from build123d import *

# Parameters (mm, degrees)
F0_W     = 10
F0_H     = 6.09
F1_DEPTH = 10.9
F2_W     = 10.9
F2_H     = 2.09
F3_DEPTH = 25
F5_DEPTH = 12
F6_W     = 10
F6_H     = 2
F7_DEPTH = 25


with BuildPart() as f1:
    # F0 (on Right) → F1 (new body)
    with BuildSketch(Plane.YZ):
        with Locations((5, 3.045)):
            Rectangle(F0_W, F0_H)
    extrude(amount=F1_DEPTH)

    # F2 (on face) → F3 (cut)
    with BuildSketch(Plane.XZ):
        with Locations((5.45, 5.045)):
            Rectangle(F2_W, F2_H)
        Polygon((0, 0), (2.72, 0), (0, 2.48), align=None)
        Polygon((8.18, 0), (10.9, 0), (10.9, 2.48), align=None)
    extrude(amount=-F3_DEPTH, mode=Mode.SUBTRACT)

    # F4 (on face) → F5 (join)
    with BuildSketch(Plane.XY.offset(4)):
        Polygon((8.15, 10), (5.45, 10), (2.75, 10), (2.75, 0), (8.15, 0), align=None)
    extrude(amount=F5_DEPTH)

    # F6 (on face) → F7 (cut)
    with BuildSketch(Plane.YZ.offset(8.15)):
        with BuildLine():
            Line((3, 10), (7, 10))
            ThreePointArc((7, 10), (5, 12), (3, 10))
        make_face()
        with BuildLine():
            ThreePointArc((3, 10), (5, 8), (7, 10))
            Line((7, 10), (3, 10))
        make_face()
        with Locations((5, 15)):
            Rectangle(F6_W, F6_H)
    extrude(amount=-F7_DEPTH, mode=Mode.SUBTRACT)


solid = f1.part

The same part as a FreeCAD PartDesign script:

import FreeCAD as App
import Part
import Sketcher

V = App.Vector

doc = App.newDocument("Part")
body = doc.addObject("PartDesign::Body", "Body")

# Sketch on YZ plane
sketch1 = body.newObject("Sketcher::SketchObject", "Sketch")
sketch1.AttachmentSupport = (doc.getObject("YZ_Plane"), [""])
sketch1.MapMode = "FlatFace"
sketch1.addGeometry([
    Part.LineSegment(V(0, 6, 0), V(0, 0, 0)),
    Part.LineSegment(V(0, 0, 0), V(10, 0, 0)),
    Part.LineSegment(V(10, 0, 0), V(10, 6, 0)),
    Part.LineSegment(V(10, 6, 0), V(0, 6, 0)),
], False)
sketch1.addConstraint([
    Sketcher.Constraint("Coincident", 0, 2, 1, 1),
    Sketcher.Constraint("Coincident", 1, 2, 2, 1),
    Sketcher.Constraint("Coincident", 2, 2, 3, 1),
    Sketcher.Constraint("Coincident", 3, 2, 0, 1),
    Sketcher.Constraint("Vertical", 0),
    Sketcher.Constraint("Horizontal", 1),
    Sketcher.Constraint("Vertical", 2),
    Sketcher.Constraint("Horizontal", 3),
    Sketcher.Constraint("Coincident", 0, 2, -1, 1),
    Sketcher.Constraint("DistanceX", 1, 1, 1, 2, 10.0),
    Sketcher.Constraint("DistanceY", 0, 2, 0, 1, 6.09),
])
pad1 = body.newObject("PartDesign::Pad", "Pad")
pad1.Profile = sketch1
pad1.Length = 10.9

# Sketch on XZ plane
sketch2 = body.newObject("Sketcher::SketchObject", "Sketch001")
sketch2.AttachmentSupport = (doc.getObject("XZ_Plane"), [""])
sketch2.MapMode = "FlatFace"
sketch2.addGeometry([
    Part.LineSegment(V(0, 6.1, 0), V(0, 4, 0)),  # 0
    Part.LineSegment(V(0, 4, 0), V(10.9, 4, 0)),  # 1
    Part.LineSegment(V(10.9, 4, 0), V(10.9, 6.1, 0)),  # 2
    Part.LineSegment(V(10.9, 6.1, 0), V(0, 6.1, 0)),  # 3
    Part.LineSegment(V(0, 0, 0), V(2.7, 0, 0)),  # 4
    Part.LineSegment(V(2.7, 0, 0), V(0, 2.5, 0)),  # 5
    Part.LineSegment(V(0, 2.5, 0), V(0, 0, 0)),  # 6
    Part.LineSegment(V(8.2, 0, 0), V(10.9, 0, 0)),  # 7
    Part.LineSegment(V(10.9, 0, 0), V(10.9, 2.5, 0)),  # 8
    Part.LineSegment(V(10.9, 2.5, 0), V(8.2, 0, 0)),  # 9
], False)
sketch2.addConstraint([
    Sketcher.Constraint("Coincident", 0, 2, 1, 1),
    Sketcher.Constraint("Coincident", 1, 2, 2, 1),
    Sketcher.Constraint("Coincident", 2, 2, 3, 1),
    Sketcher.Constraint("Coincident", 3, 2, 0, 1),
    Sketcher.Constraint("Coincident", 4, 2, 5, 1),
    Sketcher.Constraint("Coincident", 5, 2, 6, 1),
    Sketcher.Constraint("Coincident", 6, 2, 4, 1),
    Sketcher.Constraint("Coincident", 7, 2, 8, 1),
    Sketcher.Constraint("Coincident", 8, 2, 9, 1),
    Sketcher.Constraint("Coincident", 9, 2, 7, 1),
    Sketcher.Constraint("Vertical", 0),
    Sketcher.Constraint("Horizontal", 1),
    Sketcher.Constraint("Vertical", 2),
    Sketcher.Constraint("Horizontal", 3),
    Sketcher.Constraint("Horizontal", 4),
    Sketcher.Constraint("Vertical", 6),
    Sketcher.Constraint("Horizontal", 7),
    Sketcher.Constraint("Vertical", 8),
    Sketcher.Constraint("Coincident", 6, 2, -1, 1),
    Sketcher.Constraint("PointOnObject", 0, 2, -2),
    Sketcher.Constraint("PointOnObject", 7, 2, -1),
    Sketcher.Constraint("Horizontal", 5, 2, 8, 2),
    Sketcher.Constraint("Vertical", 2, 2, 7, 2),
    Sketcher.Constraint("Equal", 4, 7),
    Sketcher.Constraint("DistanceX", 1, 1, 1, 2, 10.9),
    Sketcher.Constraint("DistanceY", -1, 1, 0, 2, 4.0),
    Sketcher.Constraint("DistanceX", 4, 1, 4, 2, 2.72),
    Sketcher.Constraint("DistanceY", 0, 2, 0, 1, 2.09),
    Sketcher.Constraint("DistanceY", 6, 2, 6, 1, 2.48),
])
pocket1 = body.newObject("PartDesign::Pocket", "Pocket")
pocket1.Profile = sketch2
pocket1.Length = 25

# Sketch on XY plane
sketch3 = body.newObject("Sketcher::SketchObject", "Sketch002")
sketch3.AttachmentSupport = (doc.getObject("XY_Plane"), [""])
sketch3.MapMode = "FlatFace"
sketch3.AttachmentOffset = App.Placement(V(0, 0, 4), App.Rotation())
sketch3.addGeometry([
    Part.LineSegment(V(8, 10, 0), V(3, 10, 0)),
    Part.LineSegment(V(3, 10, 0), V(3, 0, 0)),
    Part.LineSegment(V(3, 0, 0), V(8, 0, 0)),
    Part.LineSegment(V(8, 0, 0), V(8, 10, 0)),
], False)
sketch3.addConstraint([
    Sketcher.Constraint("Coincident", 0, 2, 1, 1),
    Sketcher.Constraint("Coincident", 1, 2, 2, 1),
    Sketcher.Constraint("Coincident", 2, 2, 3, 1),
    Sketcher.Constraint("Coincident", 3, 2, 0, 1),
    Sketcher.Constraint("Horizontal", 0),
    Sketcher.Constraint("Vertical", 1),
    Sketcher.Constraint("Horizontal", 2),
    Sketcher.Constraint("Vertical", 3),
    Sketcher.Constraint("PointOnObject", 1, 2, -1),
    Sketcher.Constraint("DistanceY", 1, 2, 1, 1, 10.0),
    Sketcher.Constraint("DistanceX", 0, 2, 0, 1, 5.4),
    Sketcher.Constraint("DistanceX", -1, 1, 0, 2, 2.75),
])
pad2 = body.newObject("PartDesign::Pad", "Pad001")
pad2.Profile = sketch3
pad2.Length = 12

# Sketch on YZ plane
sketch4 = body.newObject("Sketcher::SketchObject", "Sketch003")
sketch4.AttachmentSupport = (doc.getObject("YZ_Plane"), [""])
sketch4.MapMode = "FlatFace"
sketch4.AttachmentOffset = App.Placement(V(0, 0, 8.15), App.Rotation())
sketch4.addGeometry([
    Part.Circle(V(5, 10, 0), V(0, 0, 1), 2),  # 0
    Part.LineSegment(V(0, 16, 0), V(0, 14, 0)),  # 1
    Part.LineSegment(V(0, 14, 0), V(10, 14, 0)),  # 2
    Part.LineSegment(V(10, 14, 0), V(10, 16, 0)),  # 3
    Part.LineSegment(V(10, 16, 0), V(0, 16, 0)),  # 4
], False)
sketch4.addConstraint([
    Sketcher.Constraint("Coincident", 1, 2, 2, 1),
    Sketcher.Constraint("Coincident", 2, 2, 3, 1),
    Sketcher.Constraint("Coincident", 3, 2, 4, 1),
    Sketcher.Constraint("Coincident", 4, 2, 1, 1),
    Sketcher.Constraint("Vertical", 1),
    Sketcher.Constraint("Horizontal", 2),
    Sketcher.Constraint("Vertical", 3),
    Sketcher.Constraint("Horizontal", 4),
    Sketcher.Constraint("PointOnObject", 1, 2, -2),
    Sketcher.Constraint("Diameter", 0, 4.0),
    Sketcher.Constraint("DistanceX", 2, 1, 2, 2, 10.0),
    Sketcher.Constraint("DistanceY", 1, 2, 1, 1, 2.0),
    Sketcher.Constraint("DistanceX", -1, 1, 0, 3, 5.0),
    Sketcher.Constraint("DistanceY", -1, 1, 0, 3, 10.0),
    Sketcher.Constraint("DistanceY", -1, 1, 1, 2, 14.0),
])
pocket2 = body.newObject("PartDesign::Pocket", "Pocket001")
pocket2.Profile = sketch4
pocket2.Length = 25

doc.recompute()
